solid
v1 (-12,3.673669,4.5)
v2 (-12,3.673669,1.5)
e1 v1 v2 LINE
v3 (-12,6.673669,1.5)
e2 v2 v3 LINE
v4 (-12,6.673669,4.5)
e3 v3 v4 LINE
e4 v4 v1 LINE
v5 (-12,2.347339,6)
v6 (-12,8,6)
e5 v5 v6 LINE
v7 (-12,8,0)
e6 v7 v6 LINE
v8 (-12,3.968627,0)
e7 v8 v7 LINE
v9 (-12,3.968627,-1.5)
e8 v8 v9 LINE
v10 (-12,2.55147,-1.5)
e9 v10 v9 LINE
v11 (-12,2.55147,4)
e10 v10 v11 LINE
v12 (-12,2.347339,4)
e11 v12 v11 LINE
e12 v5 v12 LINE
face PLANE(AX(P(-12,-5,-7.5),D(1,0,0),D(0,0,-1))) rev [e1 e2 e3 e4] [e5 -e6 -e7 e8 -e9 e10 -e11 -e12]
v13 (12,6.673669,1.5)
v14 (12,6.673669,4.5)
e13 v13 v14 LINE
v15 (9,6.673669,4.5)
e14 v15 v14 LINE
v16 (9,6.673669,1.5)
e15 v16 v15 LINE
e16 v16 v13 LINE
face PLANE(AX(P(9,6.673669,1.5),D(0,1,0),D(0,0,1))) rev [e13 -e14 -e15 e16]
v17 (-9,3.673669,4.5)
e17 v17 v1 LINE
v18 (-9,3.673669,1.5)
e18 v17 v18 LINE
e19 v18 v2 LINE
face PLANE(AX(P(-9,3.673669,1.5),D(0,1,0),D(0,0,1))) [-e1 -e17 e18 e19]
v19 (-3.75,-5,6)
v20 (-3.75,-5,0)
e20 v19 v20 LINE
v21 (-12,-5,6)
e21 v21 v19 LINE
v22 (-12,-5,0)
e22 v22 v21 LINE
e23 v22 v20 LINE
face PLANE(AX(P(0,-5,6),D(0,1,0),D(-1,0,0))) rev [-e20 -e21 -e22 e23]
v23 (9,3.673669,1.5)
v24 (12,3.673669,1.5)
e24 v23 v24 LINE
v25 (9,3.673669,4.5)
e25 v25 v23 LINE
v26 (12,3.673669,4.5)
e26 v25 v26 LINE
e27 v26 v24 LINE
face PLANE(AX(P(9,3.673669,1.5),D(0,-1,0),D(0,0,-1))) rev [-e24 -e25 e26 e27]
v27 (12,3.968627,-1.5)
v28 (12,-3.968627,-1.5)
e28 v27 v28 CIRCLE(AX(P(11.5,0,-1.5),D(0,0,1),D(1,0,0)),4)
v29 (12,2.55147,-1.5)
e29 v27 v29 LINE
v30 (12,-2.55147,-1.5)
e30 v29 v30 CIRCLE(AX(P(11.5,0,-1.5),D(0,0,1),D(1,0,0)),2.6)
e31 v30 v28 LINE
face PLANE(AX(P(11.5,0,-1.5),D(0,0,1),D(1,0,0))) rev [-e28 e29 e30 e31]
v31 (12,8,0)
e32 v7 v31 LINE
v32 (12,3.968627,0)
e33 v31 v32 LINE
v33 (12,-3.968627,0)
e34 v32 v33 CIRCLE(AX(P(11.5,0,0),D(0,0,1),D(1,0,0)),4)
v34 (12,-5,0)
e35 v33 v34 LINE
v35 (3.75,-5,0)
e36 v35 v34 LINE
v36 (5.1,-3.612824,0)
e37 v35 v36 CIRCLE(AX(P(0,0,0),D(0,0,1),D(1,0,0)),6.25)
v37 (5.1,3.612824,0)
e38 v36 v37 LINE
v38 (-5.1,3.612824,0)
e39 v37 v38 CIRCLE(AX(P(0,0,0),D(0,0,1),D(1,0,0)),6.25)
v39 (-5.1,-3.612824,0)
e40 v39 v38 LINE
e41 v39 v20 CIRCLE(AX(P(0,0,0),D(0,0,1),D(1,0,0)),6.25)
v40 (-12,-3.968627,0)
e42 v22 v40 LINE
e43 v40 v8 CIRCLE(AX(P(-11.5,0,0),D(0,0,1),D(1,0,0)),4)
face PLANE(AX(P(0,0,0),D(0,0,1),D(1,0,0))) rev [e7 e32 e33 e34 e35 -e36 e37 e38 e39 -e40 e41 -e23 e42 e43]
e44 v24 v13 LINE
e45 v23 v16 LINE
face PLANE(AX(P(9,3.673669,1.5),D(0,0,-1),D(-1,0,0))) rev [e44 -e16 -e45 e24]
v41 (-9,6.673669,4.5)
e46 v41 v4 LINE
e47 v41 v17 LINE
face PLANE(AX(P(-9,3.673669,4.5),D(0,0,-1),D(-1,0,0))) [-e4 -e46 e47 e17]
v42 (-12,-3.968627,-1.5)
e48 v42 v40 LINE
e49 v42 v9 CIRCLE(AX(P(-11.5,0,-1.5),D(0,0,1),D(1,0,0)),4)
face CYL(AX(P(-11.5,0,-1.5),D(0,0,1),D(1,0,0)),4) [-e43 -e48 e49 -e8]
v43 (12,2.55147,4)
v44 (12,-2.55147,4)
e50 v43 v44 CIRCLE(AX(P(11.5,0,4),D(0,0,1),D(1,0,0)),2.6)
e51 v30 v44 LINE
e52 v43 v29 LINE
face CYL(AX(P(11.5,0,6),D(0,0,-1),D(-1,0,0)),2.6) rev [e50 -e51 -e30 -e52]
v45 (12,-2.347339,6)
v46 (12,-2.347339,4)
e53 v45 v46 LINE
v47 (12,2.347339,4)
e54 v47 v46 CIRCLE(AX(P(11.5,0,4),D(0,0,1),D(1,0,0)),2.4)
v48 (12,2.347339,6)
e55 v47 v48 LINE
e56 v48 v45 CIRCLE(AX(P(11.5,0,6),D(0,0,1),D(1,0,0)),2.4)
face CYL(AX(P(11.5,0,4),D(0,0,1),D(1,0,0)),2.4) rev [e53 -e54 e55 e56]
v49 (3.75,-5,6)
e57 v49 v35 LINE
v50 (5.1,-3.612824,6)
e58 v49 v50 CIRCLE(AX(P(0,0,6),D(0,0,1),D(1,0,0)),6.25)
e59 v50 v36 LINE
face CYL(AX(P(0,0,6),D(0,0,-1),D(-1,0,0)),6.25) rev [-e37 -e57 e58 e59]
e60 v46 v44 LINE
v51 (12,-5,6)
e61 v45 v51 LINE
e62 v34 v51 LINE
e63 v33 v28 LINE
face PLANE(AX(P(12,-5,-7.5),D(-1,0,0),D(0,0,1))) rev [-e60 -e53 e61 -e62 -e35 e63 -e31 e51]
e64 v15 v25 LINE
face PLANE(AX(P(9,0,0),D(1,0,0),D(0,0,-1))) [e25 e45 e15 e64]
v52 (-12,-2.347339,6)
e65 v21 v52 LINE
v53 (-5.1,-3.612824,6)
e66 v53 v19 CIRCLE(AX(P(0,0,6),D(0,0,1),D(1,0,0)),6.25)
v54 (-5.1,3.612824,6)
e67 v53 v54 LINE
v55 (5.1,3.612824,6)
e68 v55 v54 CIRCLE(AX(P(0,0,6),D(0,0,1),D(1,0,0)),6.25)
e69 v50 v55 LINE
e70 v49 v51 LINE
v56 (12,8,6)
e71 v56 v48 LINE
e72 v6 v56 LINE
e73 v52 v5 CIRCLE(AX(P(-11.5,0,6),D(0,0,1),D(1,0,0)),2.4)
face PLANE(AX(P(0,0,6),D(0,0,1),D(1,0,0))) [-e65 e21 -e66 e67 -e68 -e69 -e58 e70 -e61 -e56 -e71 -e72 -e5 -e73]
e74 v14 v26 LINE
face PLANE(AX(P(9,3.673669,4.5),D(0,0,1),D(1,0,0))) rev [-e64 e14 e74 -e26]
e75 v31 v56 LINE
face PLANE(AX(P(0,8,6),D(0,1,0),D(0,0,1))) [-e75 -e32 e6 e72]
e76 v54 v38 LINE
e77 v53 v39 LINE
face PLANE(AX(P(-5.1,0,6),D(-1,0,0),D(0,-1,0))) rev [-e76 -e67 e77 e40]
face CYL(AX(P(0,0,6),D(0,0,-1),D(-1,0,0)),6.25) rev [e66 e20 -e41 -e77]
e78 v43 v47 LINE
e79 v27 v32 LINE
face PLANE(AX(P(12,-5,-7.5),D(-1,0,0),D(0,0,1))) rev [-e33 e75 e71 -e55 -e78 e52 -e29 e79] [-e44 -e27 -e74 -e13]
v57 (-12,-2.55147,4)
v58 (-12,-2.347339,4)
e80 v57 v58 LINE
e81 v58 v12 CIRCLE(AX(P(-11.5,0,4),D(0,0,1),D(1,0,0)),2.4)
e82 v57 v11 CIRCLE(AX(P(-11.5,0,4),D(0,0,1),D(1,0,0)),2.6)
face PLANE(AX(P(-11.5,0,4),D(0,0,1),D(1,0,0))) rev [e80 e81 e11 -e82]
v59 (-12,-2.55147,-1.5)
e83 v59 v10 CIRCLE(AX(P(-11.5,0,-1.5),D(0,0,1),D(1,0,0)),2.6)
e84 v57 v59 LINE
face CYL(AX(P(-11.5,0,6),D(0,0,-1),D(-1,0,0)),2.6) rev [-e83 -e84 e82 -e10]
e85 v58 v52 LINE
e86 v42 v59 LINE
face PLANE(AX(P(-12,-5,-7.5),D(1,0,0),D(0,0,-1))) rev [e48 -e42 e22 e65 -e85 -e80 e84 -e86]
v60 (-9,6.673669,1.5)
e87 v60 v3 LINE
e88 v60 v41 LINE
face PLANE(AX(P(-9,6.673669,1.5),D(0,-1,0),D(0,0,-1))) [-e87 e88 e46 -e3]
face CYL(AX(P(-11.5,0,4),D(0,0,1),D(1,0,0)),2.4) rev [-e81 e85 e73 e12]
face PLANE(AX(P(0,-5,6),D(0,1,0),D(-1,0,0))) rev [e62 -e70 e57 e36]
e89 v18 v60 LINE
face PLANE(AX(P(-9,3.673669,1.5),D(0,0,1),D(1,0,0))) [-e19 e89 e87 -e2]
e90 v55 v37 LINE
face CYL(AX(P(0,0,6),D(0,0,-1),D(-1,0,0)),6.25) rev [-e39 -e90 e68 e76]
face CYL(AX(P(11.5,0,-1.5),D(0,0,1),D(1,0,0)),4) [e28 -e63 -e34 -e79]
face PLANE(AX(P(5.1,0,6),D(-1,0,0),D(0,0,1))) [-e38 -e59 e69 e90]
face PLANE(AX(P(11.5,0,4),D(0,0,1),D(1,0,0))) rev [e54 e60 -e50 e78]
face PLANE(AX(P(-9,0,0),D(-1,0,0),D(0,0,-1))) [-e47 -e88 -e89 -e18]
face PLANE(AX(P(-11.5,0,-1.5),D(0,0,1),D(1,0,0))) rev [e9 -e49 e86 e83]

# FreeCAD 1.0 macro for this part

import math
import FreeCAD as App
import Part
import Sketcher
from FreeCAD import Vector
Q = App.Units.Quantity


def add_polygon(sketch, points):
    """Adds a closed chain of lines whose ends are joined by coincident constraints."""
    first, n = sketch.GeometryCount, len(points)
    for a, b in zip(points, points[1:] + points[:1]):
        sketch.addGeometry(Part.LineSegment(App.Vector(*a, 0), App.Vector(*b, 0)), False)
    for i in range(n):
        sketch.addConstraint(Sketcher.Constraint("Coincident", first + i, 2, first + (i + 1) % n, 1))

doc = App.newDocument("Part")
body = doc.addObject("PartDesign::Body", "Body")
body.AllowCompound = True

sketch1 = body.newObject("Sketcher::SketchObject", "Sketch")
sketch1.AttachmentSupport = (doc.getObject("XY_Plane"), [""])
sketch1.MapMode = "FlatFace"
sketch1.addGeometry([
    Part.ArcOfCircle(Part.Circle(Vector(0, 0, 0), Vector(0, 0, 1), 6.25), math.radians(-53.130102), math.radians(-35.31364)),
    Part.LineSegment(Vector(3.75, -5, 0), Vector(14.7, -5, 0)),
    Part.LineSegment(Vector(14.7, -5, 0), Vector(14.7, 8, 0)),
    Part.LineSegment(Vector(14.7, 8, 0), Vector(-14.7, 8, 0)),
    Part.LineSegment(Vector(-14.7, 8, 0), Vector(-14.7, -5, 0)),
    Part.LineSegment(Vector(-14.7, -5, 0), Vector(-3.75, -5, 0)),
    Part.ArcOfCircle(Part.Circle(Vector(0, 0, 0), Vector(0, 0, 1), 6.25), math.radians(-144.68636), math.radians(-126.869898)),
    Part.LineSegment(Vector(-5.1, -3.612824, 0), Vector(-5.1, 3.612824, 0)),
    Part.ArcOfCircle(Part.Circle(Vector(0, 0, 0), Vector(0, 0, 1), 6.25), math.radians(35.31364), math.radians(144.68636)),
    Part.LineSegment(Vector(5.1, 3.612824, 0), Vector(5.1, -3.612824, 0)),
    Part.Circle(Vector(11.5, 0, 0), Vector(0, 0, 1), 1),
    Part.Circle(Vector(-11.5, 0, 0), Vector(0, 0, 1), 1),
], False)
sketch1.addConstraint([
    Sketcher.Constraint("Coincident", 0, 1, 1, 1),
    Sketcher.Constraint("Coincident", 1, 2, 2, 1),
    Sketcher.Constraint("Coincident", 2, 2, 3, 1),
    Sketcher.Constraint("Coincident", 3, 2, 4, 1),
    Sketcher.Constraint("Coincident", 4, 2, 5, 1),
    Sketcher.Constraint("Coincident", 5, 2, 6, 2),
    Sketcher.Constraint("Coincident", 6, 1, 7, 1),
    Sketcher.Constraint("Coincident", 7, 2, 8, 2),
    Sketcher.Constraint("Coincident", 8, 1, 9, 1),
    Sketcher.Constraint("Coincident", 9, 2, 0, 2),
    Sketcher.Constraint("Horizontal", 1),
    Sketcher.Constraint("Vertical", 2),
    Sketcher.Constraint("Horizontal", 3),
    Sketcher.Constraint("Vertical", 4),
    Sketcher.Constraint("Horizontal", 5),
    Sketcher.Constraint("Vertical", 7),
    Sketcher.Constraint("Vertical", 9),
    Sketcher.Constraint("Coincident", 0, 3, -1, 1),
    Sketcher.Constraint("Coincident", 6, 3, -1, 1),
    Sketcher.Constraint("Coincident", 8, 3, -1, 1),
    Sketcher.Constraint("Equal", 0, 6),
    Sketcher.Constraint("Equal", 6, 8),
    Sketcher.Constraint("Equal", 10, 11),
    Sketcher.Constraint("Symmetric", 10, 3, 11, 3, -1, 1),
    Sketcher.Constraint("Symmetric", 1, 2, 4, 2, -2),
    Sketcher.Constraint("PointOnObject", 10, 3, -1),
    Sketcher.Constraint("Horizontal", 7, 2, 8, 1),
    Sketcher.Constraint("Diameter", 10, Q("2 mm")),
    Sketcher.Constraint("DistanceY", 2, 1, 2, 2, Q("13 mm")),
    Sketcher.Constraint("Radius", 0, Q("6.25 mm")),
    Sketcher.Constraint("DistanceX", 3, 2, 3, 1, Q("29.4 mm")),
    Sketcher.Constraint("DistanceY", 0, 1, -1, 1, Q("5 mm")),
    Sketcher.Constraint("DistanceX", 11, 3, 10, 3, Q("23 mm")),
    Sketcher.Constraint("DistanceX", 6, 1, -1, 1, Q("5.1 mm")),
])
pad1 = body.newObject("PartDesign::Pad", "Pad")
pad1.Profile = sketch1
pad1.Length = 6

sketch2 = body.newObject("Sketcher::SketchObject", "Sketch001")
sketch2.AttachmentSupport = (doc.getObject("XY_Plane"), [""])
sketch2.MapMode = "FlatFace"
sketch2.addGeometry([
    Part.Circle(Vector(-11.5, 0, 0), Vector(0, 0, 1), 2.6),
    Part.Circle(Vector(11.5, 0, 0), Vector(0, 0, 1), 2.6),
], False)
sketch2.addConstraint([
    Sketcher.Constraint("Equal", 0, 1),
    Sketcher.Constraint("Symmetric", 0, 3, 1, 3, -1, 1),
    Sketcher.Constraint("PointOnObject", 0, 3, -1),
    Sketcher.Constraint("Diameter", 0, Q("5.2 mm")),
    Sketcher.Constraint("DistanceX", 0, 3, 1, 3, Q("23 mm")),
])
pocket1 = body.newObject("PartDesign::Pocket", "Pocket")
pocket1.Profile = sketch2
pocket1.Length = 6
pocket1.Reversed = True

sketch3 = body.newObject("Sketcher::SketchObject", "Sketch002")
sketch3.AttachmentSupport = (doc.getObject("XY_Plane"), [""])
sketch3.MapMode = "FlatFace"
add_polygon(sketch3, [(-22.3, 8), (-22.3, -5), (-14.7, -5), (-14.7, 8)])
sketch3.addConstraint([
    Sketcher.Constraint("Vertical", 0),
    Sketcher.Constraint("Horizontal", 1),
    Sketcher.Constraint("Vertical", 2),
    Sketcher.Constraint("Horizontal", 3),
    Sketcher.Constraint("DistanceY", 0, 2, 0, 1, Q("13 mm")),
    Sketcher.Constraint("DistanceX", 1, 1, 1, 2, Q("7.6 mm")),
    Sketcher.Constraint("DistanceY", 0, 2, -1, 1, Q("5 mm")),
    Sketcher.Constraint("DistanceX", 0, 2, -1, 1, Q("22.3 mm")),
])
pad2 = body.newObject("PartDesign::Pad", "Pad001")
pad2.Profile = sketch3
pad2.Length = 6

sketch4 = body.newObject("Sketcher::SketchObject", "Sketch003")
sketch4.AttachmentSupport = (doc.getObject("XZ_Plane"), [""])
sketch4.MapMode = "FlatFace"
sketch4.AttachmentOffset = App.Placement(Vector(0, 0, 5), App.Rotation())
add_polygon(sketch4, [(-25.3, 2), (-25.3, 4), (-22.3, 4), (-22.3, 2)])
add_polygon(sketch4, [(14.7, 2), (14.7, 4), (17.7, 4), (17.7, 2)])
sketch4.addConstraint([
    Sketcher.Constraint("Vertical", 0),
    Sketcher.Constraint("Horizontal", 1),
    Sketcher.Constraint("Vertical", 2),
    Sketcher.Constraint("Horizontal", 3),
    Sketcher.Constraint("Vertical", 4),
    Sketcher.Constraint("Horizontal", 5),
    Sketcher.Constraint("Vertical", 6),
    Sketcher.Constraint("Horizontal", 7),
    Sketcher.Constraint("Horizontal", 1, 2, 4, 2),
    Sketcher.Constraint("Horizontal", 3, 2, 6, 2),
    Sketcher.Constraint("Equal", 3, 5),
    Sketcher.Constraint("DistanceX", 1, 1, 1, 2, Q("3 mm")),
    Sketcher.Constraint("DistanceY", 0, 1, 0, 2, Q("2 mm")),
    Sketcher.Constraint("DistanceY", -1, 1, 0, 2, Q("4 mm")),
    Sketcher.Constraint("DistanceX", 1, 2, 4, 2, Q("37 mm")),
    Sketcher.Constraint("DistanceX", 0, 2, -1, 1, Q("25.3 mm")),
])
pad3 = body.newObject("PartDesign::Pad", "Pad002")
pad3.Profile = sketch4
pad3.Length = 13
pad3.Reversed = True

sketch5 = body.newObject("Sketcher::SketchObject", "Sketch004")
sketch5.AttachmentSupport = (doc.getObject("XY_Plane"), [""])
sketch5.MapMode = "FlatFace"
sketch5.addGeometry([
    Part.Circle(Vector(-11.5, 0, 0), Vector(0, 0, 1), 4),
    Part.Circle(Vector(-11.5, 0, 0), Vector(0, 0, 1), 2.6),
    Part.LineSegment(Vector(14.7, -2.4, 0), Vector(14.7, 2.4, 0)),
    Part.ArcOfCircle(Part.Circle(Vector(11.5, 0, 0), Vector(0, 0, 1), 4), math.radians(36.869898), math.radians(323.130102)),
    Part.Circle(Vector(11.5, 0, 0), Vector(0, 0, 1), 2.6),
], False)
sketch5.addConstraint([
    Sketcher.Constraint("Coincident", 2, 1, 3, 2),
    Sketcher.Constraint("Coincident", 3, 1, 2, 2),
    Sketcher.Constraint("Vertical", 2),
    Sketcher.Constraint("Coincident", 1, 3, 0, 3),
    Sketcher.Constraint("Coincident", 4, 3, 3, 3),
    Sketcher.Constraint("Equal", 0, 3),
    Sketcher.Constraint("Equal", 1, 4),
    Sketcher.Constraint("Symmetric", 0, 3, 3, 3, -1, 1),
    Sketcher.Constraint("PointOnObject", 0, 3, -1),
    Sketcher.Constraint("Diameter", 0, Q("8 mm")),
    Sketcher.Constraint("Diameter", 1, Q("5.2 mm")),
    Sketcher.Constraint("DistanceY", 2, 1, 2, 2, Q("4.8 mm")),
    Sketcher.Constraint("DistanceX", 0, 3, 3, 3, Q("23 mm")),
])
pad4 = body.newObject("PartDesign::Pad", "Pad003")
pad4.Profile = sketch5
pad4.Length = 1.5
pad4.Reversed = True

sketch6 = body.newObject("Sketcher::SketchObject", "Sketch005")
sketch6.AttachmentSupport = (doc.getObject("XY_Plane"), [""])
sketch6.MapMode = "FlatFace"
sketch6.AttachmentOffset = App.Placement(Vector(0, 0, 6), App.Rotation())
sketch6.addGeometry([
    Part.Circle(Vector(-11.5, 0, 0), Vector(0, 0, 1), 2.6),
    Part.Circle(Vector(-11.5, 0, 0), Vector(0, 0, 1), 2.4),
    Part.Circle(Vector(11.5, 0, 0), Vector(0, 0, 1), 2.6),
    Part.Circle(Vector(11.5, 0, 0), Vector(0, 0, 1), 2.4),
], False)
sketch6.addConstraint([
    Sketcher.Constraint("Coincident", 1, 3, 0, 3),
    Sketcher.Constraint("Coincident", 3, 3, 2, 3),
    Sketcher.Constraint("Equal", 0, 2),
    Sketcher.Constraint("Equal", 1, 3),
    Sketcher.Constraint("Symmetric", 0, 3, 2, 3, -1, 1),
    Sketcher.Constraint("PointOnObject", 0, 3, -1),
    Sketcher.Constraint("Diameter", 0, Q("5.2 mm")),
    Sketcher.Constraint("Diameter", 1, Q("4.8 mm")),
    Sketcher.Constraint("DistanceX", 0, 3, 2, 3, Q("23 mm")),
])
pad5 = body.newObject("PartDesign::Pad", "Pad004")
pad5.Profile = sketch6
pad5.Length = 2
pad5.Reversed = True

sketch7 = body.newObject("Sketcher::SketchObject", "Sketch006")
sketch7.AttachmentSupport = (doc.getObject("XZ_Plane"), [""])
sketch7.MapMode = "FlatFace"
sketch7.AttachmentOffset = App.Placement(Vector(0, 0, 5), App.Rotation())
add_polygon(sketch7, [(-22.3, 0), (-16.3, 0), (-16.3, 2), (-17.8, 2), (-17.8, 6), (-20.8, 6), (-20.8, 2), (-22.3, 2)])
sketch7.addConstraint([
    Sketcher.Constraint("Horizontal", 0),
    Sketcher.Constraint("Vertical", 1),
    Sketcher.Constraint("Horizontal", 2),
    Sketcher.Constraint("Vertical", 3),
    Sketcher.Constraint("Horizontal", 4),
    Sketcher.Constraint("Vertical", 5),
    Sketcher.Constraint("Horizontal", 6),
    Sketcher.Constraint("Vertical", 7),
    Sketcher.Constraint("PointOnObject", 0, 2, -1),
    Sketcher.Constraint("Horizontal", 2, 2, 5, 2),
    Sketcher.Constraint("Equal", 2, 6),
    Sketcher.Constraint("DistanceX", 0, 1, 0, 2, Q("6 mm")),
    Sketcher.Constraint("DistanceX", 4, 2, 4, 1, Q("3 mm")),
    Sketcher.Constraint("DistanceY", 1, 1, 1, 2, Q("2 mm")),
    Sketcher.Constraint("DistanceY", 3, 1, 3, 2, Q("4 mm")),
    Sketcher.Constraint("DistanceX", 0, 2, -1, 1, Q("16.3 mm")),
])
pocket2 = body.newObject("PartDesign::Pocket", "Pocket001")
pocket2.Profile = sketch7
pocket2.Length = 7

sketch8 = body.newObject("Sketcher::SketchObject", "Sketch007")
sketch8.AttachmentSupport = (doc.getObject("XY_Plane"), [""])
sketch8.MapMode = "FlatFace"
add_polygon(sketch8, [(-17.8, 8), (-17.8, 2), (-20.8, 2), (-20.8, 8)])
sketch8.addConstraint([
    Sketcher.Constraint("Vertical", 0),
    Sketcher.Constraint("Horizontal", 1),
    Sketcher.Constraint("Vertical", 2),
    Sketcher.Constraint("Horizontal", 3),
    Sketcher.Constraint("DistanceX", 1, 2, 1, 1, Q("3 mm")),
    Sketcher.Constraint("DistanceY", 0, 2, 0, 1, Q("6 mm")),
    Sketcher.Constraint("DistanceY", -1, 1, 0, 2, Q("2 mm")),
    Sketcher.Constraint("DistanceX", 0, 2, -1, 1, Q("17.8 mm")),
])
pocket3 = body.newObject("PartDesign::Pocket", "Pocket002")
pocket3.Profile = sketch8
pocket3.Length = 2
pocket3.Reversed = True

sketch9 = body.newObject("Sketcher::SketchObject", "Sketch008")
sketch9.AttachmentSupport = (doc.getObject("XY_Plane"), [""])
sketch9.MapMode = "FlatFace"
add_polygon(sketch9, [(-12.2, 8), (-12.2, -5), (-12, -5), (-12, 8)])
add_polygon(sketch9, [(12, 8), (12, -5), (12.2, -5), (12.2, 8)])
sketch9.addConstraint([
    Sketcher.Constraint("Vertical", 0),
    Sketcher.Constraint("Horizontal", 1),
    Sketcher.Constraint("Vertical", 2),
    Sketcher.Constraint("Horizontal", 3),
    Sketcher.Constraint("Vertical", 4),
    Sketcher.Constraint("Horizontal", 5),
    Sketcher.Constraint("Vertical", 6),
    Sketcher.Constraint("Horizontal", 7),
    Sketcher.Constraint("Symmetric", 1, 2, 4, 2, -2),
    Sketcher.Constraint("Symmetric", 3, 2, 6, 2, -2),
    Sketcher.Constraint("DistanceY", 0, 2, 0, 1, Q("13 mm")),
    Sketcher.Constraint("DistanceX", 1, 1, 1, 2, Q("0.2 mm")),
    Sketcher.Constraint("DistanceY", 0, 2, -1, 1, Q("5 mm")),
    Sketcher.Constraint("DistanceX", 1, 2, -1, 1, Q("12 mm")),
])
pocket4 = body.newObject("PartDesign::Pocket", "Pocket003")
pocket4.Profile = sketch9
pocket4.Length = 15
pocket4.Midplane = True

sketch10 = body.newObject("Sketcher::SketchObject", "Sketch009")
sketch10.AttachmentSupport = (doc.getObject("YZ_Plane"), [""])
sketch10.MapMode = "FlatFace"
sketch10.AttachmentOffset = App.Placement(Vector(0, 0, 12), App.Rotation())
add_polygon(sketch10, [(6.673669, 4.5), (3.673669, 4.5), (3.673669, 1.5), (6.673669, 1.5)])
sketch10.addConstraint([
    Sketcher.Constraint("Horizontal", 0),
    Sketcher.Constraint("Vertical", 1),
    Sketcher.Constraint("Horizontal", 2),
    Sketcher.Constraint("Vertical", 3),
    Sketcher.Constraint("Equal", 2, 1),
    Sketcher.Constraint("DistanceX", 0, 2, 0, 1, Q("3 mm")),
    Sketcher.Constraint("DistanceY", -1, 1, 0, 2, Q("4.5 mm")),
    Sketcher.Constraint("DistanceX", -1, 1, 0, 2, Q("3.673669 mm")),
])
pocket5 = body.newObject("PartDesign::Pocket", "Pocket004")
pocket5.Profile = sketch10
pocket5.Length = 3
doc.recompute()

mirrored = body.newObject("PartDesign::Mirrored", "Mirrored")
mirrored.Originals = [pocket5]
mirrored.MirrorPlane = (doc.getObject("YZ_Plane"), [""])
body.Tip = mirrored

sketch11 = body.newObject("Sketcher::SketchObject", "Sketch010")
sketch11.AttachmentSupport = (doc.getObject("YZ_Plane"), [""])
sketch11.MapMode = "FlatFace"
sketch11.AttachmentOffset = App.Placement(Vector(0, 0, -12.2), App.Rotation())
add_polygon(sketch11, [(6.573669, 4.4), (3.773669, 4.4), (3.773669, 1.6), (6.573669, 1.6)])
sketch11.addConstraint([
    Sketcher.Constraint("Horizontal", 0),
    Sketcher.Constraint("Vertical", 1),
    Sketcher.Constraint("Horizontal", 2),
    Sketcher.Constraint("Vertical", 3),
    Sketcher.Constraint("Equal", 2, 1),
    Sketcher.Constraint("DistanceX", 0, 2, 0, 1, Q("2.8 mm")),
    Sketcher.Constraint("DistanceY", -1, 1, 0, 2, Q("4.4 mm")),
    Sketcher.Constraint("DistanceX", -1, 1, 0, 2, Q("3.773669 mm")),
])
pad6 = body.newObject("PartDesign::Pad", "Pad005")
pad6.Profile = sketch11
pad6.Length = 3

sketch12 = body.newObject("Sketcher::SketchObject", "Sketch011")
sketch12.AttachmentSupport = (doc.getObject("YZ_Plane"), [""])
sketch12.MapMode = "FlatFace"
sketch12.AttachmentOffset = App.Placement(Vector(0, 0, 12.2), App.Rotation())
add_polygon(sketch12, [(6.573669, 4.4), (3.773669, 4.4), (3.773669, 1.6), (6.573669, 1.6)])
sketch12.addConstraint([
    Sketcher.Constraint("Horizontal", 0),
    Sketcher.Constraint("Vertical", 1),
    Sketcher.Constraint("Horizontal", 2),
    Sketcher.Constraint("Vertical", 3),
    Sketcher.Constraint("Equal", 2, 1),
    Sketcher.Constraint("DistanceX", 0, 2, 0, 1, Q("2.8 mm")),
    Sketcher.Constraint("DistanceY", -1, 1, 0, 2, Q("4.4 mm")),
    Sketcher.Constraint("DistanceX", -1, 1, 0, 2, Q("3.773669 mm")),
])
pad7 = body.newObject("PartDesign::Pad", "Pad006")
pad7.Profile = sketch12
pad7.Length = 3
pad7.Reversed = True

sketch13 = body.newObject("Sketcher::SketchObject", "Sketch012")
sketch13.AttachmentSupport = (doc.getObject("XY_Plane"), [""])
sketch13.MapMode = "FlatFace"
add_polygon(sketch13, [(12, 8), (12, -5), (17.7, -5), (17.7, 8)])
add_polygon(sketch13, [(-25.3, 8), (-25.3, -5), (-12, -5), (-12, 8)])
sketch13.addConstraint([
    Sketcher.Constraint("Vertical", 0),
    Sketcher.Constraint("Horizontal", 1),
    Sketcher.Constraint("Vertical", 2),
    Sketcher.Constraint("Horizontal", 3),
    Sketcher.Constraint("Vertical", 4),
    Sketcher.Constraint("Horizontal", 5),
    Sketcher.Constraint("Vertical", 6),
    Sketcher.Constraint("Horizontal", 7),
    Sketcher.Constraint("Symmetric", 0, 2, 5, 2, -2),
    Sketcher.Constraint("Horizontal", 3, 2, 6, 2),
    Sketcher.Constraint("DistanceY", 0, 2, 0, 1, Q("13 mm")),
    Sketcher.Constraint("DistanceX", 1, 1, 1, 2, Q("5.7 mm")),
    Sketcher.Constraint("DistanceX", 5, 1, 5, 2, Q("13.3 mm")),
    Sketcher.Constraint("DistanceX", -1, 1, 0, 2, Q("12 mm")),
    Sketcher.Constraint("DistanceY", 0, 2, -1, 1, Q("5 mm")),
])
pocket6 = body.newObject("PartDesign::Pocket", "Pocket005")
pocket6.Profile = sketch13
pocket6.Length = 18
pocket6.Midplane = True

sketch14 = body.newObject("Sketcher::SketchObject", "Sketch013")
sketch14.AttachmentSupport = (doc.getObject("YZ_Plane"), [""])
sketch14.MapMode = "FlatFace"
sketch14.AttachmentOffset = App.Placement(Vector(0, 0, 12), App.Rotation())
add_polygon(sketch14, [(6.673669, 4.5), (3.673669, 4.5), (3.673669, 1.5), (6.673669, 1.5)])
sketch14.addConstraint([
    Sketcher.Constraint("Horizontal", 0),
    Sketcher.Constraint("Vertical", 1),
    Sketcher.Constraint("Horizontal", 2),
    Sketcher.Constraint("Vertical", 3),
    Sketcher.Constraint("Equal", 2, 1),
    Sketcher.Constraint("DistanceX", 0, 2, 0, 1, Q("3 mm")),
    Sketcher.Constraint("DistanceY", -1, 1, 0, 2, Q("4.5 mm")),
    Sketcher.Constraint("DistanceX", -1, 1, 0, 2, Q("3.673669 mm")),
])
pocket7 = body.newObject("PartDesign::Pocket", "Pocket006")
pocket7.Profile = sketch14
pocket7.Length = 3

sketch15 = body.newObject("Sketcher::SketchObject", "Sketch014")
sketch15.AttachmentSupport = (doc.getObject("YZ_Plane"), [""])
sketch15.MapMode = "FlatFace"
sketch15.AttachmentOffset = App.Placement(Vector(0, 0, -12), App.Rotation())
add_polygon(sketch15, [(6.673669, 4.5), (3.673669, 4.5), (3.673669, 1.5), (6.673669, 1.5)])
sketch15.addConstraint([
    Sketcher.Constraint("Horizontal", 0),
    Sketcher.Constraint("Vertical", 1),
    Sketcher.Constraint("Horizontal", 2),
    Sketcher.Constraint("Vertical", 3),
    Sketcher.Constraint("Equal", 2, 1),
    Sketcher.Constraint("DistanceX", 0, 2, 0, 1, Q("3 mm")),
    Sketcher.Constraint("DistanceY", -1, 1, 0, 2, Q("4.5 mm")),
    Sketcher.Constraint("DistanceX", -1, 1, 0, 2, Q("3.673669 mm")),
])
pocket8 = body.newObject("PartDesign::Pocket", "Pocket007")
pocket8.Profile = sketch15
pocket8.Length = 3
pocket8.Reversed = True

doc.recompute()
